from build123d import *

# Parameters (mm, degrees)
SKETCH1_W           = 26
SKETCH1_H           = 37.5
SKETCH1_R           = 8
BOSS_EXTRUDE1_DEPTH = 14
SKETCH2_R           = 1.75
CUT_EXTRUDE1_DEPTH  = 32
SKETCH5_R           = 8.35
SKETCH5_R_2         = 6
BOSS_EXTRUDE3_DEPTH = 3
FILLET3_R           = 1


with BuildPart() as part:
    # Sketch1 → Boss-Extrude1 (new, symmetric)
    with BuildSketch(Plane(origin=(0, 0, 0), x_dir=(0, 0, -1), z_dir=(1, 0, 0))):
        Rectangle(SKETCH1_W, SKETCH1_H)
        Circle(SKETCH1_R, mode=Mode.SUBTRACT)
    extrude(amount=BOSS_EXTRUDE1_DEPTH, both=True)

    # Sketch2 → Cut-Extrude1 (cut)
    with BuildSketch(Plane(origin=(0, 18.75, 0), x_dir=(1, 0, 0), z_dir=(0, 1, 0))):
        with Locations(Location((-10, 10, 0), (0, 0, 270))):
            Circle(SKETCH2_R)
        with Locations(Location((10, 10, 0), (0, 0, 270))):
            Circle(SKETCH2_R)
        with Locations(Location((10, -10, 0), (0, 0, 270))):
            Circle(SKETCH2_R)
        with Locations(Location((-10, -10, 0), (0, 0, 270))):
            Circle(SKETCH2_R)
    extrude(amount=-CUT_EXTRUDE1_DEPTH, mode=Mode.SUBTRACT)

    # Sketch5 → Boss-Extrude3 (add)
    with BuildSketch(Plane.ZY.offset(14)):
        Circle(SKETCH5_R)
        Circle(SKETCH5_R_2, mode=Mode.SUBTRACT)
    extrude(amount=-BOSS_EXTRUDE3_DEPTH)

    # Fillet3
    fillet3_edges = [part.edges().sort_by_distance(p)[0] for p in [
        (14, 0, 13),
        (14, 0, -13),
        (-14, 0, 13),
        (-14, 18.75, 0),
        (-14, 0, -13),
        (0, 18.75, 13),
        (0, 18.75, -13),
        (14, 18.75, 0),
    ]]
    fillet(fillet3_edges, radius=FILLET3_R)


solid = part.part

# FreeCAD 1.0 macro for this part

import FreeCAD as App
import Part
import Sketcher


def edges_at(feature, points):
    """Names of the edges that pass closest to the given points."""
    edges = feature.Shape.Edges
    near = lambda p: min(range(len(edges)), key=lambda i: edges[i].distToShape(Part.Vertex(*p))[0])
    return sorted({f"Edge{near(p) + 1}" for p in points})


def add_polygon(sketch, points):
    """Adds a closed chain of lines whose ends are joined by coincident constraints."""
    first, n = sketch.GeometryCount, len(points)
    for a, b in zip(points, points[1:] + points[:1]):
        sketch.addGeometry(Part.LineSegment(App.Vector(*a, 0), App.Vector(*b, 0)), False)
    for i in range(n):
        sketch.addConstraint(Sketcher.Constraint("Coincident", first + i, 2, first + (i + 1) % n, 1))

doc = App.newDocument("Part")
body = doc.addObject("PartDesign::Body", "Body")

# Sketch on YZ plane
sketch1 = doc.addObject("Sketcher::SketchObject", "Sketch")
body.addObject(sketch1)
sketch1.AttachmentSupport = (doc.YZ_Plane, [""])
sketch1.MapMode = "FlatFace"
add_polygon(sketch1, [(19, 13), (-19, 13), (-19, -13), (19, -13)])  # lines 0-3
sketch1.addGeometry(Part.Circle(App.Vector(0, 0, 0), App.Vector(0, 0, 1), 8), False)  # 4
sketch1.addConstraint(Sketcher.Constraint("Horizontal", 0))
sketch1.addConstraint(Sketcher.Constraint("Vertical", 1))
sketch1.addConstraint(Sketcher.Constraint("Horizontal", 2))
sketch1.addConstraint(Sketcher.Constraint("Vertical", 3))
sketch1.addConstraint(Sketcher.Constraint("Coincident", 4, 3, -1, 1))
sketch1.addConstraint(Sketcher.Constraint("Symmetric", 0, 2, 2, 2, -1, 1))
sketch1.addConstraint(Sketcher.Constraint("Diameter", 4, 16.0))
sketch1.addConstraint(Sketcher.Constraint("DistanceY", 1, 2, 1, 1, 26.0))
sketch1.addConstraint(Sketcher.Constraint("DistanceX", 0, 2, 0, 1, 37.5))
pad1 = doc.addObject("PartDesign::Pad", "Pad")
body.addObject(pad1)
pad1.Profile = sketch1
pad1.Length = 28
pad1.Midplane = True

# Sketch on XZ plane
sketch2 = doc.addObject("Sketcher::SketchObject", "Sketch001")
body.addObject(sketch2)
sketch2.AttachmentSupport = (doc.XZ_Plane, [""])
sketch2.MapMode = "FlatFace"
sketch2.AttachmentOffset = App.Placement(App.Vector(0, 0, -18.75), App.Rotation())
sketch2.addGeometry(Part.Circle(App.Vector(-10, -10, 0), App.Vector(0, 0, 1), 1.8), False)
sketch2.addGeometry(Part.Circle(App.Vector(10, -10, 0), App.Vector(0, 0, 1), 1.8), False)
sketch2.addGeometry(Part.Circle(App.Vector(10, 10, 0), App.Vector(0, 0, 1), 1.8), False)
sketch2.addGeometry(Part.Circle(App.Vector(-10, 10, 0), App.Vector(0, 0, 1), 1.8), False)
sketch2.addConstraint(Sketcher.Constraint("Equal", 0, 1))
sketch2.addConstraint(Sketcher.Constraint("Equal", 1, 2))
sketch2.addConstraint(Sketcher.Constraint("Equal", 2, 3))
sketch2.addConstraint(Sketcher.Constraint("Symmetric", 0, 3, 2, 3, -1, 1))
sketch2.addConstraint(Sketcher.Constraint("Symmetric", 1, 3, 3, 3, -1, 1))
sketch2.addConstraint(Sketcher.Constraint("Symmetric", 0, 3, 1, 3, -2))
sketch2.addConstraint(Sketcher.Constraint("Diameter", 0, 3.5))
sketch2.addConstraint(Sketcher.Constraint("DistanceX", 0, 3, -1, 1, 10.0))
sketch2.addConstraint(Sketcher.Constraint("DistanceY", 0, 3, -1, 1, 10.0))
pocket1 = doc.addObject("PartDesign::Pocket", "Pocket")
body.addObject(pocket1)
pocket1.Profile = sketch2
pocket1.Length = 32
pocket1.Reversed = True

# Sketch on YZ plane
sketch3 = doc.addObject("Sketcher::SketchObject", "Sketch002")
body.addObject(sketch3)
sketch3.AttachmentSupport = (doc.YZ_Plane, [""])
sketch3.MapMode = "FlatFace"
sketch3.AttachmentOffset = App.Placement(App.Vector(0, 0, -14), App.Rotation())
sketch3.addGeometry(Part.Circle(App.Vector(0, 0, 0), App.Vector(0, 0, 1), 8), False)
sketch3.addGeometry(Part.Circle(App.Vector(0, 0, 0), App.Vector(0, 0, 1), 6), False)
sketch3.addConstraint(Sketcher.Constraint("Coincident", 0, 3, -1, 1))
sketch3.addConstraint(Sketcher.Constraint("Coincident", 1, 3, -1, 1))
sketch3.addConstraint(Sketcher.Constraint("Diameter", 1, 12.0))
sketch3.addConstraint(Sketcher.Constraint("Diameter", 0, 16.7))
pad2 = doc.addObject("PartDesign::Pad", "Pad001")
body.addObject(pad2)
pad2.Profile = sketch3
pad2.Length = 3
doc.recompute()

fillet = doc.addObject("PartDesign::Fillet", "Fillet")
body.addObject(fillet)
fillet.Base = (pad2, edges_at(pad2, [
    (14, 0, 13),
    (14, 0, -13),
    (-14, 0, 13),
    (-14, 18.75, 0),
    (-14, 0, -13),
    (0, 18.75, 13),
    (0, 18.75, -13),
    (14, 18.75, 0),
]))
fillet.Radius = 1

doc.recompute()
